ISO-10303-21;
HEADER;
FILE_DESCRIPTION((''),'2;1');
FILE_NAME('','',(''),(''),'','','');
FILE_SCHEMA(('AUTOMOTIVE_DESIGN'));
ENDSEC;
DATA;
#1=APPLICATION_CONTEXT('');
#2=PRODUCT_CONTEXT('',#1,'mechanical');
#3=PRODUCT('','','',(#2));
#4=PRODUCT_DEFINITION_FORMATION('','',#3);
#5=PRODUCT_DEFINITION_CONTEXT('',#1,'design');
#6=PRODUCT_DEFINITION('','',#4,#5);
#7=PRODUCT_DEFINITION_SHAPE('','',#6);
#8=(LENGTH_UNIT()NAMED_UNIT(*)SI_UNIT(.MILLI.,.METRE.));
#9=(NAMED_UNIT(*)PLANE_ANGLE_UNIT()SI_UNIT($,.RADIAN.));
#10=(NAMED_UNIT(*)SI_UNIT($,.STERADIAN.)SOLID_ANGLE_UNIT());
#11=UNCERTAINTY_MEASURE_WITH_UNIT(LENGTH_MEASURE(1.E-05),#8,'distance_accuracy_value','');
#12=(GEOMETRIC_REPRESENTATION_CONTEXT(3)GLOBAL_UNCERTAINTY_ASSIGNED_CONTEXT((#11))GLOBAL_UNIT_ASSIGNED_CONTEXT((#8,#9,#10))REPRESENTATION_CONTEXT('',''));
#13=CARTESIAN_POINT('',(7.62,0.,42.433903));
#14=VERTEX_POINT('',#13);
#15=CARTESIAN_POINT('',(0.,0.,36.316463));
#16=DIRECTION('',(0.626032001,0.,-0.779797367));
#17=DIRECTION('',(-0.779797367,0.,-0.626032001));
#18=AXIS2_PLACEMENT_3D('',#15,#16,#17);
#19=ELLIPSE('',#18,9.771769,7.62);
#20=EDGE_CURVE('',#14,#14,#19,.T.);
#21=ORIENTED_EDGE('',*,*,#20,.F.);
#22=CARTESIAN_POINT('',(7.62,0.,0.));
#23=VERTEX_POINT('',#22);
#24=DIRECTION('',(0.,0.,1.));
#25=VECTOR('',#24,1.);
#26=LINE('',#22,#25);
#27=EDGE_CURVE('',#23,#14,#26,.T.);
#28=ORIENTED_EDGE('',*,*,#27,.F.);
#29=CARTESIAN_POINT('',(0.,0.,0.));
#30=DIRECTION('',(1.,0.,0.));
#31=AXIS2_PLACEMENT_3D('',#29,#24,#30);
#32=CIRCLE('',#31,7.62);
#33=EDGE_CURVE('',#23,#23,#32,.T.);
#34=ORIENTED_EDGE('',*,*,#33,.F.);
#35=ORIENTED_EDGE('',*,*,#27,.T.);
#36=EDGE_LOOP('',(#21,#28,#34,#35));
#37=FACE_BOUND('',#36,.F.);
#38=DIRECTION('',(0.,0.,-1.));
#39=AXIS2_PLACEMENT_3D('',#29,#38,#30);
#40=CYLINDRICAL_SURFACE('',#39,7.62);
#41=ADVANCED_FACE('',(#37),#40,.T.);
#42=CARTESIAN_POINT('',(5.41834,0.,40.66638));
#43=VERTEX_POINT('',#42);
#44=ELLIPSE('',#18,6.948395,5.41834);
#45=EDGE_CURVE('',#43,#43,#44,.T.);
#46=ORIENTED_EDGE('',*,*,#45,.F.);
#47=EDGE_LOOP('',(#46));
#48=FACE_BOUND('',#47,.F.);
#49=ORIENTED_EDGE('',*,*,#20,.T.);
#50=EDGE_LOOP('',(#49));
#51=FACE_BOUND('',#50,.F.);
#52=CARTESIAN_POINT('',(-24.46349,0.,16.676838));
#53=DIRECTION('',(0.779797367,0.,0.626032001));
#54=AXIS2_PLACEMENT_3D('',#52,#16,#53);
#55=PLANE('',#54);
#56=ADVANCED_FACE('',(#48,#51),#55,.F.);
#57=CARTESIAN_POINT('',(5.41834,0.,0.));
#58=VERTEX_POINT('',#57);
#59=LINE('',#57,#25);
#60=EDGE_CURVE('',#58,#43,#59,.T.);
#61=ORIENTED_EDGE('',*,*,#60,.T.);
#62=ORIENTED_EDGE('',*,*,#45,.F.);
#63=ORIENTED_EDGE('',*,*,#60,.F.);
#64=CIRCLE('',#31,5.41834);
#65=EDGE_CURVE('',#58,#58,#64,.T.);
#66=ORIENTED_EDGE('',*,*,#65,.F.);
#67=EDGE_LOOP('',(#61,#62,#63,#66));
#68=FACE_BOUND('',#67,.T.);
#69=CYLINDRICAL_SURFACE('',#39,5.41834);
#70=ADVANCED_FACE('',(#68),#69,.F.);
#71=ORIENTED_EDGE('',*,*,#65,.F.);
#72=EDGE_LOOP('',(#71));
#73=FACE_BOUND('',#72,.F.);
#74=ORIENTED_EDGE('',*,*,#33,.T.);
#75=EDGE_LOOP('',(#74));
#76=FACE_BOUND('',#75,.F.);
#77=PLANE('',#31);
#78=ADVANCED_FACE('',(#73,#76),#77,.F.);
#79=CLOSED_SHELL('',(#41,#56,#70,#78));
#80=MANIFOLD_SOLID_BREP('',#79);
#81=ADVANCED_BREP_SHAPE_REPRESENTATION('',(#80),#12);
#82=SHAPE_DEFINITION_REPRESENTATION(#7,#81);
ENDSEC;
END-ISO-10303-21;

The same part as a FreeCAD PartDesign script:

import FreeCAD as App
import Part
import Sketcher
Q = App.Units.Quantity


def add_polygon(sketch, points):
    """Adds a closed chain of lines whose ends are joined by coincident constraints."""
    first, n = sketch.GeometryCount, len(points)
    for a, b in zip(points, points[1:] + points[:1]):
        sketch.addGeometry(Part.LineSegment(App.Vector(*a, 0), App.Vector(*b, 0)), False)
    for i in range(n):
        sketch.addConstraint(Sketcher.Constraint("Coincident", first + i, 2, first + (i + 1) % n, 1))

doc = App.newDocument("Part")
body = doc.addObject("PartDesign::Body", "Body")

# Sketch on XY plane
sketch1 = body.newObject("Sketcher::SketchObject", "Sketch")
sketch1.AttachmentSupport = (doc.getObject("XY_Plane"), [""])
sketch1.MapMode = "FlatFace"
sketch1.addGeometry([
    Part.Circle(App.Vector(0, 0, 0), App.Vector(0, 0, 1), 7.62),
    Part.Circle(App.Vector(0, 0, 0), App.Vector(0, 0, 1), 5.41834),
], False)
sketch1.addConstraint([
    Sketcher.Constraint("Coincident", 0, 3, -1, 1),
    Sketcher.Constraint("Coincident", 1, 3, -1, 1),
    Sketcher.Constraint("Diameter", 0, Q("0.6 in")),
    Sketcher.Constraint("Diameter", 1, 10.83668),
])
pad1 = body.newObject("PartDesign::Pad", "Pad")
pad1.Profile = sketch1
pad1.Length = Q("1.8 in")

# Sketch on XZ plane
sketch2 = body.newObject("Sketcher::SketchObject", "Sketch001")
sketch2.AttachmentSupport = (doc.getObject("XZ_Plane"), [""])
sketch2.MapMode = "FlatFace"
add_polygon(sketch2, [(-24.46349, 16.676838), (19.292864, 51.805038), (-24.46349, 51.805038)])  # lines 0-2
sketch2.addConstraint([
    Sketcher.Constraint("Horizontal", 1),
    Sketcher.Constraint("Vertical", 2),
    Sketcher.Constraint("DistanceY", 2, 2, 2, 1, Q("1.383 in")),
    Sketcher.Constraint("DistanceX", 1, 2, 1, 1, 43.756354),
    Sketcher.Constraint("DistanceY", -1, 1, 0, 2, 51.805038),
    Sketcher.Constraint("DistanceX", 1, 2, -1, 1, 24.46349),
])
pocket1 = body.newObject("PartDesign::Pocket", "Pocket")
pocket1.Profile = sketch2
pocket1.Length = Q("1 in")
pocket1.Midplane = True

doc.recompute()
